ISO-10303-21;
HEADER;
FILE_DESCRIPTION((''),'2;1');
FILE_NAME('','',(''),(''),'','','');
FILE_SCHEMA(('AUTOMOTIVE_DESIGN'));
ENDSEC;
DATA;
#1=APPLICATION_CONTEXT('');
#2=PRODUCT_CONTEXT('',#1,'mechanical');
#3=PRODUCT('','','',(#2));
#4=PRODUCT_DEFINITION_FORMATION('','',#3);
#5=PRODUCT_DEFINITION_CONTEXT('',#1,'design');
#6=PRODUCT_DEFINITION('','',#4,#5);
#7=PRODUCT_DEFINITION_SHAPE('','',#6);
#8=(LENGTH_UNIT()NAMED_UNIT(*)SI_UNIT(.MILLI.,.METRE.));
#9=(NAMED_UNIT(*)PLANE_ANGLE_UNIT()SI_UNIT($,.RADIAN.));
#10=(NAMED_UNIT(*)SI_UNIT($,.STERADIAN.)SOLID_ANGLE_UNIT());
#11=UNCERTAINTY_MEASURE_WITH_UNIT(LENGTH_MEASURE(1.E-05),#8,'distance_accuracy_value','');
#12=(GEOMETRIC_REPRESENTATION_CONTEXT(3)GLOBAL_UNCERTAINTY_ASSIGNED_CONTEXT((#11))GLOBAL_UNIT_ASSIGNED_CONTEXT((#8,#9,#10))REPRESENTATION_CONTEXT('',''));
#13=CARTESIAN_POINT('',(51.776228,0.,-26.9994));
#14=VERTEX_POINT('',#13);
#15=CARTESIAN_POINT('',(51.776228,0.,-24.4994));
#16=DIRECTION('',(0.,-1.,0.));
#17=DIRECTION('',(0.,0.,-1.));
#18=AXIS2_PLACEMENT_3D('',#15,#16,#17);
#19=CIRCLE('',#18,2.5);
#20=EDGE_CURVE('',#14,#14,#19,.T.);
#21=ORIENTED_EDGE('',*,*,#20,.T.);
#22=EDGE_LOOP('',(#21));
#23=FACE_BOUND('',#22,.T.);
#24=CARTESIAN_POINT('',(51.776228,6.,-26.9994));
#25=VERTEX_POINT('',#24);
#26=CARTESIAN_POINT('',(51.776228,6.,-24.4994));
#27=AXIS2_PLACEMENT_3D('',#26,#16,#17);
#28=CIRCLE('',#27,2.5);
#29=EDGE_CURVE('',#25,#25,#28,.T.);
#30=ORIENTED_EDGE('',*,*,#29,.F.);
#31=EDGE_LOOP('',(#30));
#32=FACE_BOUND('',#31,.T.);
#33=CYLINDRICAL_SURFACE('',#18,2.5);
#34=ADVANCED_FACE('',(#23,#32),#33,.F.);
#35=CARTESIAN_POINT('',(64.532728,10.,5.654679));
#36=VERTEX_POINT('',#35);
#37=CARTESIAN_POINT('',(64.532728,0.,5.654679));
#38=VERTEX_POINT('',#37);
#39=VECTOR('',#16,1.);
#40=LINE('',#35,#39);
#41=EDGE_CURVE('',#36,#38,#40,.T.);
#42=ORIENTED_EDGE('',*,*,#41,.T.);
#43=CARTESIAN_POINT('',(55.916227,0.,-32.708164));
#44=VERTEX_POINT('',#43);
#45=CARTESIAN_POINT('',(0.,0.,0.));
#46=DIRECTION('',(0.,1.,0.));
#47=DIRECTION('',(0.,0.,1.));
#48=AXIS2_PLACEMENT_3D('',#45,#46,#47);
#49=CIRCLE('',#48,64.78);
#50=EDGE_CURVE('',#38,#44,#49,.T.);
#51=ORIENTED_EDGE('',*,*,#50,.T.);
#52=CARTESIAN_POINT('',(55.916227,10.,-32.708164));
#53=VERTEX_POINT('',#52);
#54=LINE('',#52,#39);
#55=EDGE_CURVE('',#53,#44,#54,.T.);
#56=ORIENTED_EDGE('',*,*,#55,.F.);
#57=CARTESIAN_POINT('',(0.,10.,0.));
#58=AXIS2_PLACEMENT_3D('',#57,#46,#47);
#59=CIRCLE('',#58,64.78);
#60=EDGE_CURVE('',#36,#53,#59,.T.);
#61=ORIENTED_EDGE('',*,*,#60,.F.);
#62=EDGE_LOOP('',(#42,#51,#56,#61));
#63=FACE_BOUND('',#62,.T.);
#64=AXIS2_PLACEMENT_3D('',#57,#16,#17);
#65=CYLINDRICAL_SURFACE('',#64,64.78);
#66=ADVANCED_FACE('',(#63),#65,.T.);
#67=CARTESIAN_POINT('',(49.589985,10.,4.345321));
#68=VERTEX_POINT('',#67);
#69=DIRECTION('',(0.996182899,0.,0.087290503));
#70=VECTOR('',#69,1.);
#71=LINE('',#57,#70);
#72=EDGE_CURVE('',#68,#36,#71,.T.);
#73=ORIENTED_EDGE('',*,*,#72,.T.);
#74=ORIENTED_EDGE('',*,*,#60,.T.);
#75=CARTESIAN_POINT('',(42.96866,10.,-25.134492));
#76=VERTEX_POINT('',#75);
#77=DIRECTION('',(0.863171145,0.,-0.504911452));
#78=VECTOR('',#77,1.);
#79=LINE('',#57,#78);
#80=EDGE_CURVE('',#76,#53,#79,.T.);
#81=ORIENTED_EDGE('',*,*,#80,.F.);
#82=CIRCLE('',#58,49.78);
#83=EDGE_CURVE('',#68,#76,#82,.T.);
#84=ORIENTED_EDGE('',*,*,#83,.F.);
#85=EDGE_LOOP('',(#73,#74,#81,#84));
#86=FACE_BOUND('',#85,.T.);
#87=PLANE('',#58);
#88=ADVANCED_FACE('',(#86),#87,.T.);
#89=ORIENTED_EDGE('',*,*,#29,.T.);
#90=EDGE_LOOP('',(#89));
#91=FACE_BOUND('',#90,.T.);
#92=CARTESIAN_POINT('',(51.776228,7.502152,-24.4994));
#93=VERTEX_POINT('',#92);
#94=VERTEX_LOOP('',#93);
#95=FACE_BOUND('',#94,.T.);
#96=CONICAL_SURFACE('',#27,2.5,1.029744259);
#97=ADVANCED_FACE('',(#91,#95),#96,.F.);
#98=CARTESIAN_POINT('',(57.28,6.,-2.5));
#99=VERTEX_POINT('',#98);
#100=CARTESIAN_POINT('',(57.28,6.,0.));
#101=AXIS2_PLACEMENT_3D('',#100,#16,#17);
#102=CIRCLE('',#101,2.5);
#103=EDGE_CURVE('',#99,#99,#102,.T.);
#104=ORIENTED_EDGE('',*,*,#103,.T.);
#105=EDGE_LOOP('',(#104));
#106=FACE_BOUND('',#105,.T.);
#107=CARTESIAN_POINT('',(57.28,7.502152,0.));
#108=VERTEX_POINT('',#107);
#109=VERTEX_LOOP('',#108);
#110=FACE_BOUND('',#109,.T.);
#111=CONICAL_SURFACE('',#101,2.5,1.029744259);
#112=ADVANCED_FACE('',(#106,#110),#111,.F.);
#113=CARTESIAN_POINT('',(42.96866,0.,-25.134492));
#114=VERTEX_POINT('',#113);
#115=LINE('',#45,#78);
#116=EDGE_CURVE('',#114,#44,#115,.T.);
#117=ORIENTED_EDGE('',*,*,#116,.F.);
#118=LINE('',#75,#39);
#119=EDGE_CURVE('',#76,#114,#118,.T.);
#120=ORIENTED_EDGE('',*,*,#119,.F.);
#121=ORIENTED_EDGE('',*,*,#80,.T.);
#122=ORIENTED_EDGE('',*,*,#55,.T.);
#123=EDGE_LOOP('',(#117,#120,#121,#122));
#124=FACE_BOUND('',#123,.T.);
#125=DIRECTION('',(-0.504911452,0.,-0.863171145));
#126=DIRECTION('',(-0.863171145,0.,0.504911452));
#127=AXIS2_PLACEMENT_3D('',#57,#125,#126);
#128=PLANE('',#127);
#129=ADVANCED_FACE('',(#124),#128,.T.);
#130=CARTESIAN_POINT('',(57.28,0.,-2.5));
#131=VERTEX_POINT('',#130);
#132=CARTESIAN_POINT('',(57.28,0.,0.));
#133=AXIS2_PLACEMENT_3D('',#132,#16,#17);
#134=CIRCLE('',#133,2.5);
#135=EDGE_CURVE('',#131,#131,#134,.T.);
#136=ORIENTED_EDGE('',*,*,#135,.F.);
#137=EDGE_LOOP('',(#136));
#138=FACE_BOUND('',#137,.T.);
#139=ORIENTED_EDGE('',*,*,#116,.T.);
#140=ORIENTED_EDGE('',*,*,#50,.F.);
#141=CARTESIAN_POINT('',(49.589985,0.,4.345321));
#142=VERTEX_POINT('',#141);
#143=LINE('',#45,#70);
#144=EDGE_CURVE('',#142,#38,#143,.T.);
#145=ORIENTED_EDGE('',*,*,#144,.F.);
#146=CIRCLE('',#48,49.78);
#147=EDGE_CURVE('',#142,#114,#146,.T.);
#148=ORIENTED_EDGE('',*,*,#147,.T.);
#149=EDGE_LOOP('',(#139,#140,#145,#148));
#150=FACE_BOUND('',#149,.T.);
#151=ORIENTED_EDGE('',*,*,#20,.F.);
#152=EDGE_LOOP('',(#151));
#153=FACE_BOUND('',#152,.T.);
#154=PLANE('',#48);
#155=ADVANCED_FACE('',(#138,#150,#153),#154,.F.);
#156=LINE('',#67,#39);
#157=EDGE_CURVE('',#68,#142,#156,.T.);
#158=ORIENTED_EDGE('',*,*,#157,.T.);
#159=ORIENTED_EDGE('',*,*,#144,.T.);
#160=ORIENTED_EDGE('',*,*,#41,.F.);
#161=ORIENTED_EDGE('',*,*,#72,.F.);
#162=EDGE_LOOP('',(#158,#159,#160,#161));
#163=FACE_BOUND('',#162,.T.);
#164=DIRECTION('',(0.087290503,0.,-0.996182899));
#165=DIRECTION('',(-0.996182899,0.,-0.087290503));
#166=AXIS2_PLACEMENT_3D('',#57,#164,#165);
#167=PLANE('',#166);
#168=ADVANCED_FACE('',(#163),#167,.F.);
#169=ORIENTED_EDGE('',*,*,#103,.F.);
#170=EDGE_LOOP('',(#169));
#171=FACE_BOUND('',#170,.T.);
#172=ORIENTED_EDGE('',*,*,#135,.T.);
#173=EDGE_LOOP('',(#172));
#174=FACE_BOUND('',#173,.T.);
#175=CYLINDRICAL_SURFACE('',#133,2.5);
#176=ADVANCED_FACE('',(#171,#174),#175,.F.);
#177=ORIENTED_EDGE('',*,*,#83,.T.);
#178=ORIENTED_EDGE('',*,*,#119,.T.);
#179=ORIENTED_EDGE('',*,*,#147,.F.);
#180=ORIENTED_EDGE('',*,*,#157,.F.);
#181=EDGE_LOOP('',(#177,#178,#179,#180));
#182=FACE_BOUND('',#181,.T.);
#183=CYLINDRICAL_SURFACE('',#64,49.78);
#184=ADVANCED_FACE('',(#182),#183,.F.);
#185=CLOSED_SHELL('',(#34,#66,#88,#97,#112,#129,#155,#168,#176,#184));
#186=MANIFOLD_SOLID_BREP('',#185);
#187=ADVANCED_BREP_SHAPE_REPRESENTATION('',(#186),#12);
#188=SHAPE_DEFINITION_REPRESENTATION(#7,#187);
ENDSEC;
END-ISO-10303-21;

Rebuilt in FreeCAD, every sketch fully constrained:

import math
import FreeCAD as App
import Part
import Sketcher

V = App.Vector

doc = App.newDocument("Part")
params = doc.addObject("Spreadsheet::Sheet", "Params")
for row, (alias, value) in enumerate([
    ("sketch1_radius", "49.78 mm"),
    ("sketch1_radius2", "64.78 mm"),
    ("pad1_length", "10 mm"),
    ("sketch2_diameter", "5 mm"),
    ("hole_diameter", "5 mm"),
    ("hole_depth", "6 mm"),
], start=1):
    params.set(f"A{row}", alias)
    params.set(f"B{row}", "=" + value)
    params.setAlias(f"B{row}", alias)

body = doc.addObject("PartDesign::Body", "Body")

# Sketch on XZ plane
sketch1 = body.newObject("Sketcher::SketchObject", "Sketch")
sketch1.AttachmentSupport = (doc.getObject("XZ_Plane"), [""])
sketch1.MapMode = "FlatFace"
sketch1.addGeometry(Part.ArcOfCircle(Part.Circle(V(0, 0, 0), V(0, 0, 1), 49.78), math.radians(-30.325475), math.radians(5.007751)), False)
sketch1.addGeometry(Part.LineSegment(V(49.589985, 4.345321, 0), V(64.532728, 5.654679, 0)), False)
sketch1.addGeometry(Part.ArcOfCircle(Part.Circle(V(0, 0, 0), V(0, 0, 1), 64.78), math.radians(-30.325475), math.radians(5.007751)), False)
sketch1.addGeometry(Part.LineSegment(V(55.916227, -32.708164, 0), V(42.96866, -25.134492, 0)), False)
sketch1.addConstraint(Sketcher.Constraint("Coincident", 0, 2, 1, 1))
sketch1.addConstraint(Sketcher.Constraint("Coincident", 1, 2, 2, 2))
sketch1.addConstraint(Sketcher.Constraint("Coincident", 2, 1, 3, 1))
sketch1.addConstraint(Sketcher.Constraint("Coincident", 3, 2, 0, 1))
sketch1.addConstraint(Sketcher.Constraint("Coincident", 0, 3, -1, 1))
sketch1.addConstraint(Sketcher.Constraint("Coincident", 2, 3, -1, 1))
sketch1.addConstraint(Sketcher.Constraint("Radius", 0, 49.78))
sketch1.addConstraint(Sketcher.Constraint("Radius", 2, 64.78))
sketch1.addConstraint(Sketcher.Constraint("DistanceX", 2, 1, 1, 2, 8.616501))
sketch1.addConstraint(Sketcher.Constraint("DistanceY", -1, 1, 0, 2, 4.345321))
sketch1.addConstraint(Sketcher.Constraint("DistanceX", -1, 1, 1, 2, 64.532728))
sketch1.addConstraint(Sketcher.Constraint("DistanceX", -1, 1, 3, 2, 42.96866))
sketch1.setExpression("Constraints[6]", "Params.sketch1_radius")
sketch1.setExpression("Constraints[7]", "Params.sketch1_radius2")
pad1 = body.newObject("PartDesign::Pad", "Pad")
pad1.Profile = sketch1
pad1.setExpression("Length", "Params.pad1_length")
pad1.Reversed = True

# Sketch on XZ plane
sketch2 = body.newObject("Sketcher::SketchObject", "Sketch001")
sketch2.AttachmentSupport = (doc.getObject("XZ_Plane"), [""])
sketch2.MapMode = "FlatFace"
sketch2.addGeometry(Part.Circle(V(57.28, 0, 0), V(0, 0, 1), 2.5), False)
sketch2.addGeometry(Part.Circle(V(51.776228, -24.4994, 0), V(0, 0, 1), 2.5), False)
sketch2.addConstraint(Sketcher.Constraint("Equal", 0, 1))
sketch2.addConstraint(Sketcher.Constraint("PointOnObject", 0, 3, -1))
sketch2.addConstraint(Sketcher.Constraint("Diameter", 0, 5.0))
sketch2.addConstraint(Sketcher.Constraint("DistanceX", -1, 1, 0, 3, 57.28))
sketch2.addConstraint(Sketcher.Constraint("DistanceY", 1, 3, -1, 1, 24.4994))
sketch2.addConstraint(Sketcher.Constraint("DistanceX", -1, 1, 1, 3, 51.776228))
sketch2.setExpression("Constraints[2]", "Params.sketch2_diameter")
doc.recompute()
hole = body.newObject("PartDesign::Hole", "Hole")
hole.Profile = sketch2
hole.ThreadType = "None"
hole.setExpression("Diameter", "Params.hole_diameter")
hole.DepthType = "Dimension"
hole.setExpression("Depth", "Params.hole_depth")
hole.DrillPoint = "Angled"
hole.DrillPointAngle = 118

doc.recompute()
